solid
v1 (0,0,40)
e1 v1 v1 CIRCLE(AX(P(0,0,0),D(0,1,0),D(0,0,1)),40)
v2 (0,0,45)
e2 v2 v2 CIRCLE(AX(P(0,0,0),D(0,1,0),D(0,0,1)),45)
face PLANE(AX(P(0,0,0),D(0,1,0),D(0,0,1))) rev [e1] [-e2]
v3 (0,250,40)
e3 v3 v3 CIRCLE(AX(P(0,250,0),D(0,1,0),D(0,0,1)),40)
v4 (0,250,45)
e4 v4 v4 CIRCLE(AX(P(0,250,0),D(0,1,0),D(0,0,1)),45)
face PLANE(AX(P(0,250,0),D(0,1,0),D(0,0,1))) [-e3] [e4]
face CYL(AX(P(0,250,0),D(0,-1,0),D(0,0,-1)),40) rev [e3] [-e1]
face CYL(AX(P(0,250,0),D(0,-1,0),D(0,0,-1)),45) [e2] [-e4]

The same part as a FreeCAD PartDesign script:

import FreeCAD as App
import Part
import Sketcher

V = App.Vector

doc = App.newDocument("Part")
body = doc.addObject("PartDesign::Body", "Body")

sketch1 = body.newObject("Sketcher::SketchObject", "Sketch")
sketch1.AttachmentSupport = (doc.getObject("XZ_Plane"), [""])
sketch1.MapMode = "FlatFace"
sketch1.addGeometry([
    Part.Circle(V(0, 0, 0), V(0, 0, 1), 45),
    Part.Circle(V(0, 0, 0), V(0, 0, 1), 40),
], False)
sketch1.addConstraint([
    Sketcher.Constraint("Coincident", 0, 3, -1, 1),
    Sketcher.Constraint("Coincident", 1, 3, -1, 1),
    Sketcher.Constraint("Diameter", 0, 90.0),
    Sketcher.Constraint("Diameter", 1, 80.0),
])
pad1 = body.newObject("PartDesign::Pad", "Pad")
pad1.Profile = sketch1
pad1.Length = 250
pad1.Reversed = True

doc.recompute()
